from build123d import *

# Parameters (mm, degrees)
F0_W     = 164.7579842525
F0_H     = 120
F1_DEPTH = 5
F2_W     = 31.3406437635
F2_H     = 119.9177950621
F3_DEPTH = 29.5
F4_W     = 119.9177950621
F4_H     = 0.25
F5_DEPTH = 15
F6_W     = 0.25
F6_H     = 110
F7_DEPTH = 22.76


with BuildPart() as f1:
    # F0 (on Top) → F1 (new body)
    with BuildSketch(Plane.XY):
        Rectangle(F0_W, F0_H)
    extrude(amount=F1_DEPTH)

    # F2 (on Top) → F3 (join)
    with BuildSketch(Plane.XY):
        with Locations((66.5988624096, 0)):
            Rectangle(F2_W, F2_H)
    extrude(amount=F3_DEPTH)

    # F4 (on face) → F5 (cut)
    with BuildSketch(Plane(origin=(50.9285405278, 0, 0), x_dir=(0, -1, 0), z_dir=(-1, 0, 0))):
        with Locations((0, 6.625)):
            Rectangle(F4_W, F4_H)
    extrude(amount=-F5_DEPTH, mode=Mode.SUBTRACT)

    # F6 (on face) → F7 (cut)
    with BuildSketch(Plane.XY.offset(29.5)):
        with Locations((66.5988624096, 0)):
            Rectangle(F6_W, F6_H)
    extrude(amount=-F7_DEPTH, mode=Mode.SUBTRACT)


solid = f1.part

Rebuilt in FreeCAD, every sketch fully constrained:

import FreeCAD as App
import Part
import Sketcher

doc = App.newDocument("Part")
body = doc.addObject("PartDesign::Body", "Body")

sketch1 = body.newObject("Sketcher::SketchObject", "Sketch")
sketch1.AttachmentSupport = (doc.getObject("XY_Plane"), [""])
sketch1.MapMode = "FlatFace"
sketch1.addGeometry(Part.LineSegment(App.Vector(-82, 60, 0), App.Vector(-82, -60, 0)), False)
sketch1.addGeometry(Part.LineSegment(App.Vector(-82, -60, 0), App.Vector(82, -60, 0)), False)
sketch1.addGeometry(Part.LineSegment(App.Vector(82, -60, 0), App.Vector(82, 60, 0)), False)
sketch1.addGeometry(Part.LineSegment(App.Vector(82, 60, 0), App.Vector(-82, 60, 0)), False)
sketch1.addConstraint(Sketcher.Constraint("Coincident", 0, 2, 1, 1))
sketch1.addConstraint(Sketcher.Constraint("Coincident", 1, 2, 2, 1))
sketch1.addConstraint(Sketcher.Constraint("Coincident", 2, 2, 3, 1))
sketch1.addConstraint(Sketcher.Constraint("Coincident", 3, 2, 0, 1))
sketch1.addConstraint(Sketcher.Constraint("Vertical", 0))
sketch1.addConstraint(Sketcher.Constraint("Horizontal", 1))
sketch1.addConstraint(Sketcher.Constraint("Vertical", 2))
sketch1.addConstraint(Sketcher.Constraint("Horizontal", 3))
sketch1.addConstraint(Sketcher.Constraint("Symmetric", 0, 2, 2, 2, -1, 1))
sketch1.addConstraint(Sketcher.Constraint("DistanceY", 0, 2, 0, 1, 120.0))
sketch1.addConstraint(Sketcher.Constraint("DistanceX", 1, 1, 1, 2, 164.757984))
pad1 = body.newObject("PartDesign::Pad", "Pad")
pad1.Profile = sketch1
pad1.Length = 5

sketch2 = body.newObject("Sketcher::SketchObject", "Sketch001")
sketch2.AttachmentSupport = (doc.getObject("XY_Plane"), [""])
sketch2.MapMode = "FlatFace"
sketch2.addGeometry(Part.LineSegment(App.Vector(51, 60, 0), App.Vector(51, -60, 0)), False)
sketch2.addGeometry(Part.LineSegment(App.Vector(51, -60, 0), App.Vector(82, -60, 0)), False)
sketch2.addGeometry(Part.LineSegment(App.Vector(82, -60, 0), App.Vector(82, 60, 0)), False)
sketch2.addGeometry(Part.LineSegment(App.Vector(82, 60, 0), App.Vector(51, 60, 0)), False)
sketch2.addConstraint(Sketcher.Constraint("Coincident", 0, 2, 1, 1))
sketch2.addConstraint(Sketcher.Constraint("Coincident", 1, 2, 2, 1))
sketch2.addConstraint(Sketcher.Constraint("Coincident", 2, 2, 3, 1))
sketch2.addConstraint(Sketcher.Constraint("Coincident", 3, 2, 0, 1))
sketch2.addConstraint(Sketcher.Constraint("Vertical", 0))
sketch2.addConstraint(Sketcher.Constraint("Horizontal", 1))
sketch2.addConstraint(Sketcher.Constraint("Vertical", 2))
sketch2.addConstraint(Sketcher.Constraint("Horizontal", 3))
sketch2.addConstraint(Sketcher.Constraint("DistanceX", 1, 1, 1, 2, 31.340644))
sketch2.addConstraint(Sketcher.Constraint("DistanceY", 0, 2, 0, 1, 119.917795))
sketch2.addConstraint(Sketcher.Constraint("DistanceX", -1, 1, 0, 2, 50.928541))
sketch2.addConstraint(Sketcher.Constraint("DistanceY", 0, 2, -1, 1, 59.958898))
pad2 = body.newObject("PartDesign::Pad", "Pad001")
pad2.Profile = sketch2
pad2.Length = 29.5

sketch3 = body.newObject("Sketcher::SketchObject", "Sketch002")
sketch3.AttachmentSupport = (doc.getObject("YZ_Plane"), [""])
sketch3.MapMode = "FlatFace"
sketch3.AttachmentOffset = App.Placement(App.Vector(0, 0, 50.928541), App.Rotation())
sketch3.addGeometry(Part.LineSegment(App.Vector(59.96, 6.75, 0), App.Vector(59.96, 6.5, 0)), False)
sketch3.addGeometry(Part.LineSegment(App.Vector(59.96, 6.5, 0), App.Vector(-59.96, 6.5, 0)), False)
sketch3.addGeometry(Part.LineSegment(App.Vector(-59.96, 6.5, 0), App.Vector(-59.96, 6.75, 0)), False)
sketch3.addGeometry(Part.LineSegment(App.Vector(-59.96, 6.75, 0), App.Vector(59.96, 6.75, 0)), False)
sketch3.addConstraint(Sketcher.Constraint("Coincident", 0, 2, 1, 1))
sketch3.addConstraint(Sketcher.Constraint("Coincident", 1, 2, 2, 1))
sketch3.addConstraint(Sketcher.Constraint("Coincident", 2, 2, 3, 1))
sketch3.addConstraint(Sketcher.Constraint("Coincident", 3, 2, 0, 1))
sketch3.addConstraint(Sketcher.Constraint("Vertical", 0))
sketch3.addConstraint(Sketcher.Constraint("Horizontal", 1))
sketch3.addConstraint(Sketcher.Constraint("Vertical", 2))
sketch3.addConstraint(Sketcher.Constraint("Horizontal", 3))
sketch3.addConstraint(Sketcher.Constraint("DistanceY", 0, 2, 0, 1, 0.25))
sketch3.addConstraint(Sketcher.Constraint("DistanceY", -1, 1, 0, 2, 6.5))
sketch3.addConstraint(Sketcher.Constraint("DistanceX", 1, 2, 1, 1, 119.917795))
sketch3.addConstraint(Sketcher.Constraint("DistanceX", -1, 1, 0, 2, 59.958898))
pocket1 = body.newObject("PartDesign::Pocket", "Pocket")
pocket1.Profile = sketch3
pocket1.Length = 15
pocket1.Reversed = True

sketch4 = body.newObject("Sketcher::SketchObject", "Sketch003")
sketch4.AttachmentSupport = (doc.getObject("XY_Plane"), [""])
sketch4.MapMode = "FlatFace"
sketch4.AttachmentOffset = App.Placement(App.Vector(0, 0, 29.5), App.Rotation())
sketch4.addGeometry(Part.LineSegment(App.Vector(66.47, 55, 0), App.Vector(66.47, -55, 0)), False)
sketch4.addGeometry(Part.LineSegment(App.Vector(66.47, -55, 0), App.Vector(66.72, -55, 0)), False)
sketch4.addGeometry(Part.LineSegment(App.Vector(66.72, -55, 0), App.Vector(66.72, 55, 0)), False)
sketch4.addGeometry(Part.LineSegment(App.Vector(66.72, 55, 0), App.Vector(66.47, 55, 0)), False)
sketch4.addConstraint(Sketcher.Constraint("Coincident", 0, 2, 1, 1))
sketch4.addConstraint(Sketcher.Constraint("Coincident", 1, 2, 2, 1))
sketch4.addConstraint(Sketcher.Constraint("Coincident", 2, 2, 3, 1))
sketch4.addConstraint(Sketcher.Constraint("Coincident", 3, 2, 0, 1))
sketch4.addConstraint(Sketcher.Constraint("Vertical", 0))
sketch4.addConstraint(Sketcher.Constraint("Horizontal", 1))
sketch4.addConstraint(Sketcher.Constraint("Vertical", 2))
sketch4.addConstraint(Sketcher.Constraint("Horizontal", 3))
sketch4.addConstraint(Sketcher.Constraint("DistanceY", 0, 2, 0, 1, 110.0))
sketch4.addConstraint(Sketcher.Constraint("DistanceY", 0, 2, -1, 1, 55.0))
sketch4.addConstraint(Sketcher.Constraint("DistanceX", 1, 1, 1, 2, 0.25))
sketch4.addConstraint(Sketcher.Constraint("DistanceX", -1, 1, 0, 2, 66.473862))
pocket2 = body.newObject("PartDesign::Pocket", "Pocket001")
pocket2.Profile = sketch4
pocket2.Length = 22.76

doc.recompute()
